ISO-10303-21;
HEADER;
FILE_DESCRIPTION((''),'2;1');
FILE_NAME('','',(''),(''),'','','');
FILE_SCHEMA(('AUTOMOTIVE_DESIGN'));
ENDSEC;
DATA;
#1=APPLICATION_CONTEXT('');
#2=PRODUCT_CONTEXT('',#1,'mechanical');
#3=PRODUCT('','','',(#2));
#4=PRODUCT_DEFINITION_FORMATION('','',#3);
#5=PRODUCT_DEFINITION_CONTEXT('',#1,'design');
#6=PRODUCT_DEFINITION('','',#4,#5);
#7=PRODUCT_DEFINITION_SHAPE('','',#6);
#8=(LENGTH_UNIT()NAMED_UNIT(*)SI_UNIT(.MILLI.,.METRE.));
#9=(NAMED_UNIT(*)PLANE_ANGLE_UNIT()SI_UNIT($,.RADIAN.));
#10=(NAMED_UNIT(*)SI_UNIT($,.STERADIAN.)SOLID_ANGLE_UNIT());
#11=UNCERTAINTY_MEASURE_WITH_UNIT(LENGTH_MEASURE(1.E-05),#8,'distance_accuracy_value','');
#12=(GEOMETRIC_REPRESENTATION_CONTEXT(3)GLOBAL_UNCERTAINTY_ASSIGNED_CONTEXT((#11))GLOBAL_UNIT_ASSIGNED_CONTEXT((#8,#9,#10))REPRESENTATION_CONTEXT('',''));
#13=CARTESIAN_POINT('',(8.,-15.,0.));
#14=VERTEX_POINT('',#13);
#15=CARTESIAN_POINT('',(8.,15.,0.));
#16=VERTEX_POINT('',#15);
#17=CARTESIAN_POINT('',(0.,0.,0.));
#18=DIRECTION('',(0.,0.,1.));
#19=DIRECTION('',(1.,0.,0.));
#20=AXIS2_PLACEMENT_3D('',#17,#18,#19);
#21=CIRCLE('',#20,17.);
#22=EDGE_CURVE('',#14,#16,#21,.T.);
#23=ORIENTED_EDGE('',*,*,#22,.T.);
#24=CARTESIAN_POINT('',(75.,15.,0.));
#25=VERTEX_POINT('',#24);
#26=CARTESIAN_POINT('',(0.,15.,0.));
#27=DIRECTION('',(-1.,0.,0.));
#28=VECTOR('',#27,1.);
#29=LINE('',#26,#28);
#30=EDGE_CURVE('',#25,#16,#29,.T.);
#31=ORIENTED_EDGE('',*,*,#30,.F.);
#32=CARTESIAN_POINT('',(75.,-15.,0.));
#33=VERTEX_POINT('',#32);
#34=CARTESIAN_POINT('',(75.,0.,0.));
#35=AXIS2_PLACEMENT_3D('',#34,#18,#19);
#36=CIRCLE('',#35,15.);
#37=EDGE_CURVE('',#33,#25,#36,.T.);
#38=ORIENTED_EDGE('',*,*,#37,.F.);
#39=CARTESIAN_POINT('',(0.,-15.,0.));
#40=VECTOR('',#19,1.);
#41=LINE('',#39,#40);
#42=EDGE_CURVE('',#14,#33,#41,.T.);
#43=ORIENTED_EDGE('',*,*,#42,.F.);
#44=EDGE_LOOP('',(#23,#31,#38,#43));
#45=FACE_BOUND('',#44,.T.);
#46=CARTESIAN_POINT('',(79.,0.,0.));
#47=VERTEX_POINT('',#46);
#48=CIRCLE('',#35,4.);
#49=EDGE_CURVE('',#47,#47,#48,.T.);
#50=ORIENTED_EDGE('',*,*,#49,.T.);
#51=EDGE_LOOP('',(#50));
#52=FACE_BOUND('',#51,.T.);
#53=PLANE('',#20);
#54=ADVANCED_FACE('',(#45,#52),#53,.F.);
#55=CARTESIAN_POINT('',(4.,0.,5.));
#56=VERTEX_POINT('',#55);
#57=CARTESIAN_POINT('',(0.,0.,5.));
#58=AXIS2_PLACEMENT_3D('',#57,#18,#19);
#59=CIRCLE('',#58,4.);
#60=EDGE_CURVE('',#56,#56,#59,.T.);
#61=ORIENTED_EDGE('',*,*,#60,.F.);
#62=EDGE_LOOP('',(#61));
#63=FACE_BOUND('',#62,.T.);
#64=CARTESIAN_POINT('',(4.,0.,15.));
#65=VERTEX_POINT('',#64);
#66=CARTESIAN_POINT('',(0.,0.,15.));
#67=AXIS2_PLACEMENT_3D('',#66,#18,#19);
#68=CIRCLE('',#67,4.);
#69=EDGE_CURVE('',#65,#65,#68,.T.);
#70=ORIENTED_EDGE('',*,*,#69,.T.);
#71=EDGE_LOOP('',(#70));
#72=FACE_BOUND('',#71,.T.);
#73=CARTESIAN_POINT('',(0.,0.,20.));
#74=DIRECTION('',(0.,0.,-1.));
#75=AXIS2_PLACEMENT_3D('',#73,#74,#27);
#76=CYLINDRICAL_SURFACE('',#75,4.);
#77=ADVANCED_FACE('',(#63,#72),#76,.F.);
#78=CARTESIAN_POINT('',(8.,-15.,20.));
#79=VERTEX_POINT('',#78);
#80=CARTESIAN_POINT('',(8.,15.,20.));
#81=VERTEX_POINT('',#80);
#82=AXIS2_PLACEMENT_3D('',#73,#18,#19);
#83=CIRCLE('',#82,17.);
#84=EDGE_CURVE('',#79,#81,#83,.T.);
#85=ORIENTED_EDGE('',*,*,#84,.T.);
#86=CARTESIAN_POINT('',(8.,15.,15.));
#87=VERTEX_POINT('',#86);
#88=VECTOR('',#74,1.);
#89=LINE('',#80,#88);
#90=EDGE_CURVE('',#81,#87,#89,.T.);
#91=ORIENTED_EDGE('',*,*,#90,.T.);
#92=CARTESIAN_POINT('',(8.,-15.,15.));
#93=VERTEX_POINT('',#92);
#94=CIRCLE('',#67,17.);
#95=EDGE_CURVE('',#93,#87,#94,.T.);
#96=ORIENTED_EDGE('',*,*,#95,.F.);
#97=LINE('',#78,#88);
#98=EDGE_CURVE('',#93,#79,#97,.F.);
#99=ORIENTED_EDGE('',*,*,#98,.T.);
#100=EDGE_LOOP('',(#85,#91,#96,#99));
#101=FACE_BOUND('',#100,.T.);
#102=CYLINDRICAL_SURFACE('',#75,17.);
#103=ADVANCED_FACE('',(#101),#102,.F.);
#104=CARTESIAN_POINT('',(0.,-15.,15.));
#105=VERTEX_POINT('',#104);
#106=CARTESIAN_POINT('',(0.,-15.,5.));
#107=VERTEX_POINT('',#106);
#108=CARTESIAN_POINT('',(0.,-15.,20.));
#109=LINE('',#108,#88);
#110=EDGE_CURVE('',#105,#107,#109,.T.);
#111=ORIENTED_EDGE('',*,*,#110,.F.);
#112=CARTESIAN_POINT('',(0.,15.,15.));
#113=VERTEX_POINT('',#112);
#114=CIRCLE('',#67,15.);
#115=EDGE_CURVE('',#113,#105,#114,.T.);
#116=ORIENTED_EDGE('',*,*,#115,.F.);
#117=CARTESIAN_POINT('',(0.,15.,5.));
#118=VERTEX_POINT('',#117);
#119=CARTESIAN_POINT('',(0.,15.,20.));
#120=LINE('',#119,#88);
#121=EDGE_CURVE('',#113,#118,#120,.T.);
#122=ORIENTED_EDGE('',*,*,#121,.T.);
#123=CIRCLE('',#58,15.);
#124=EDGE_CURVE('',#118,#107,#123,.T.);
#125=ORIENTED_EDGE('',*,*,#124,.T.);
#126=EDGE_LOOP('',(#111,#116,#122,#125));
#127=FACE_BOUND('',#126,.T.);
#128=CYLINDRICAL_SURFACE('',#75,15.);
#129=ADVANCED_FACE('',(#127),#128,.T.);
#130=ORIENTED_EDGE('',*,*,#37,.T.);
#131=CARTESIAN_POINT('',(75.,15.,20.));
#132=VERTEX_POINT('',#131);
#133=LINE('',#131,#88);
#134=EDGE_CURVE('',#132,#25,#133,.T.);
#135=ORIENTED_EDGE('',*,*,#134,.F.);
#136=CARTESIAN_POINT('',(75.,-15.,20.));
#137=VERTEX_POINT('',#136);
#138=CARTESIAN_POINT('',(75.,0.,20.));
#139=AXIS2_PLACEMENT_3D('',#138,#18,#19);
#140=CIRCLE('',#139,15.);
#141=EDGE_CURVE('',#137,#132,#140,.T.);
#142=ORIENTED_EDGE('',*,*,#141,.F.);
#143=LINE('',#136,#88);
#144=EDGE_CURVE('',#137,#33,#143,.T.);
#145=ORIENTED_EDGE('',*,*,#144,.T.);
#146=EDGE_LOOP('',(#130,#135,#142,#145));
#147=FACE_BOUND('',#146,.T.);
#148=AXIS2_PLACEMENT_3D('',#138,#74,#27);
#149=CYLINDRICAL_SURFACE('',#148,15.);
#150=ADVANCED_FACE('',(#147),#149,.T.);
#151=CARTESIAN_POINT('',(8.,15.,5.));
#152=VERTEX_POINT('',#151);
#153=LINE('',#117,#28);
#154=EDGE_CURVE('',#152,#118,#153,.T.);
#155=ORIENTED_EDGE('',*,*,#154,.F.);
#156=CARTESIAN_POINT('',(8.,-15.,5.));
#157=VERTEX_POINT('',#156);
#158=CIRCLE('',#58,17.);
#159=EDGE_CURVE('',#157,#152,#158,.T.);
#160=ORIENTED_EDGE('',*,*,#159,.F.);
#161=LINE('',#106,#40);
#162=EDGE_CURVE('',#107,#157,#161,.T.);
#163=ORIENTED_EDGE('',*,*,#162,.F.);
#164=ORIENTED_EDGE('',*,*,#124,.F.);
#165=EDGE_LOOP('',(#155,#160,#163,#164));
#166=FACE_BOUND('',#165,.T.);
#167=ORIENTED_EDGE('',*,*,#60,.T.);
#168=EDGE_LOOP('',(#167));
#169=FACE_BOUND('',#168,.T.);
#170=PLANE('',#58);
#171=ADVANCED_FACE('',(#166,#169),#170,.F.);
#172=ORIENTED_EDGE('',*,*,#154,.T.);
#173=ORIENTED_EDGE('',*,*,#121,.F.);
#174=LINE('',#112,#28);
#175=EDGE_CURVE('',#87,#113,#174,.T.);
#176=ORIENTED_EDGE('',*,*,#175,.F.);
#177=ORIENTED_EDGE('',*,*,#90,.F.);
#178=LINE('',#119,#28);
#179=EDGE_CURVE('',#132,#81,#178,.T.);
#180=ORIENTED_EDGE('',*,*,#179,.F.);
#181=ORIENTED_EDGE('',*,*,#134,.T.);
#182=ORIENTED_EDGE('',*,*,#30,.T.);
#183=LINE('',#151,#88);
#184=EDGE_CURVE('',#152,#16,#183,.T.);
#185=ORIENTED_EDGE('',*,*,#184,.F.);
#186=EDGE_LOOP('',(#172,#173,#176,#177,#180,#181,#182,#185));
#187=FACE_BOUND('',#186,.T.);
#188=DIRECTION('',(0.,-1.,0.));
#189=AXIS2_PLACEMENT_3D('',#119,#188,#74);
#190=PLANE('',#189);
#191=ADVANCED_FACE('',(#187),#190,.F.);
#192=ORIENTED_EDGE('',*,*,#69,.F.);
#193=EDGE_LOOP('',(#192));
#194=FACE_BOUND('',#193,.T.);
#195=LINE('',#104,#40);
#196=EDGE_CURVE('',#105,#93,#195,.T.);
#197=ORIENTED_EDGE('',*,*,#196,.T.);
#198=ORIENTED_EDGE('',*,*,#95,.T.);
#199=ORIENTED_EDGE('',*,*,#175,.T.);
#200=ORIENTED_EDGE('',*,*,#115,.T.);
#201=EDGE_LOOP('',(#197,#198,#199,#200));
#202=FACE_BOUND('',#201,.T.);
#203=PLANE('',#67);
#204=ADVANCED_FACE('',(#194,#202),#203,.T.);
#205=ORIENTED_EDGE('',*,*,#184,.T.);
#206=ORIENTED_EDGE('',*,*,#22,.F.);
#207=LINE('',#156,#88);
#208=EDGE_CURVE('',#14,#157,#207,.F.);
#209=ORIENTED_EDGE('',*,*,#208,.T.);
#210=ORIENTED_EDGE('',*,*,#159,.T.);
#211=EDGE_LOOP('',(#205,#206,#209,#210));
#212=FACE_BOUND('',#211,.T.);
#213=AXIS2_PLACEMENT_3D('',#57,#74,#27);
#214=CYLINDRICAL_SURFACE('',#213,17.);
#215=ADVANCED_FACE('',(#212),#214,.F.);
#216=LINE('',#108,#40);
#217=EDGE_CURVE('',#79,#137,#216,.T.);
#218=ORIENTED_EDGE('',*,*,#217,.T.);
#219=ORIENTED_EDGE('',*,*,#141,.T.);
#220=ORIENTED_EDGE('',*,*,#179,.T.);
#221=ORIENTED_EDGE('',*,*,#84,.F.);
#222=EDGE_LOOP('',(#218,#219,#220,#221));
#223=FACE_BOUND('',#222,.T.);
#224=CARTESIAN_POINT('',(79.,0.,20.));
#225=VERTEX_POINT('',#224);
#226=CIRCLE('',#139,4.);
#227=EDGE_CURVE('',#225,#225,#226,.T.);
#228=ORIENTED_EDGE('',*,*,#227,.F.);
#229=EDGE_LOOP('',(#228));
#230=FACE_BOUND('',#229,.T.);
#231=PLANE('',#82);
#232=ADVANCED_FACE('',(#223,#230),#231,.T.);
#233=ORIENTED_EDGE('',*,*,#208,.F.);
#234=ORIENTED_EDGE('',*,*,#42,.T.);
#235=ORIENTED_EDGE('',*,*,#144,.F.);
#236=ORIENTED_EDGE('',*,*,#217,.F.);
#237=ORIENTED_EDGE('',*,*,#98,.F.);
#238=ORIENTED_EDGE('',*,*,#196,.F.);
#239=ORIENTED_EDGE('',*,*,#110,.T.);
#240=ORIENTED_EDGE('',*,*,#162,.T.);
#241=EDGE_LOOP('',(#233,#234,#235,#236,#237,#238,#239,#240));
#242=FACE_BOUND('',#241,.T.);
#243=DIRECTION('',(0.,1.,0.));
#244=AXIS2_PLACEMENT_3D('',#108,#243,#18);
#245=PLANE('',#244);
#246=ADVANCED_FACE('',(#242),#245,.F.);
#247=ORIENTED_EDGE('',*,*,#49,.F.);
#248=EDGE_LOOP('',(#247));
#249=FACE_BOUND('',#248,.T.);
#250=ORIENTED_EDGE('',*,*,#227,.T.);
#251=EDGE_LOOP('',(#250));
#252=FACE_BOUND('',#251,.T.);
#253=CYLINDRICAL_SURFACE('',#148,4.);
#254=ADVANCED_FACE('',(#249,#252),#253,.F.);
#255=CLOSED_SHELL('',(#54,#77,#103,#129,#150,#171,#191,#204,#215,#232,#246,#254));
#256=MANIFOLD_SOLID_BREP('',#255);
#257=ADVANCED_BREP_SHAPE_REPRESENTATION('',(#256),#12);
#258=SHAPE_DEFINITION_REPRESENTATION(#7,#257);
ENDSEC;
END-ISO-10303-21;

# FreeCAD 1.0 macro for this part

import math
import FreeCAD as App
import Part
import Sketcher

doc = App.newDocument("Part")
body = doc.addObject("PartDesign::Body", "Body")

# Sketch on XY plane
sketch1 = body.newObject("Sketcher::SketchObject", "Sketch")
sketch1.AttachmentSupport = (doc.getObject("XY_Plane"), [""])
sketch1.MapMode = "FlatFace"
sketch1.addGeometry(Part.LineSegment(App.Vector(75, 15, 0), App.Vector(0, 15, 0)), False)
sketch1.addGeometry(Part.ArcOfCircle(Part.Circle(App.Vector(0, 0, 0), App.Vector(0, 0, 1), 15), math.radians(90), math.radians(270)), False)
sketch1.addGeometry(Part.LineSegment(App.Vector(0, -15, 0), App.Vector(75, -15, 0)), False)
sketch1.addGeometry(Part.ArcOfCircle(Part.Circle(App.Vector(75, 0, 0), App.Vector(0, 0, 1), 15), math.radians(-90), math.radians(90)), False)
sketch1.addGeometry(Part.Circle(App.Vector(75, 0, 0), App.Vector(0, 0, 1), 4), False)
sketch1.addGeometry(Part.Circle(App.Vector(0, 0, 0), App.Vector(0, 0, 1), 4), False)
sketch1.addConstraint(Sketcher.Constraint("Tangent", 0, 2, 1, 1))
sketch1.addConstraint(Sketcher.Constraint("Tangent", 1, 2, 2, 1))
sketch1.addConstraint(Sketcher.Constraint("Tangent", 2, 2, 3, 1))
sketch1.addConstraint(Sketcher.Constraint("Tangent", 3, 2, 0, 1))
sketch1.addConstraint(Sketcher.Constraint("Horizontal", 0))
sketch1.addConstraint(Sketcher.Constraint("Horizontal", 2))
sketch1.addConstraint(Sketcher.Constraint("Coincident", 1, 3, -1, 1))
sketch1.addConstraint(Sketcher.Constraint("Coincident", 5, 3, -1, 1))
sketch1.addConstraint(Sketcher.Constraint("Coincident", 4, 3, 3, 3))
sketch1.addConstraint(Sketcher.Constraint("Equal", 4, 5))
sketch1.addConstraint(Sketcher.Constraint("Diameter", 4, 8.0))
sketch1.addConstraint(Sketcher.Constraint("Radius", 1, 15.0))
sketch1.addConstraint(Sketcher.Constraint("DistanceX", 0, 2, 0, 1, 75.0))
pad1 = body.newObject("PartDesign::Pad", "Pad")
pad1.Profile = sketch1
pad1.Length = 20

# Sketch on XY plane
sketch2 = body.newObject("Sketcher::SketchObject", "Sketch001")
sketch2.AttachmentSupport = (doc.getObject("XY_Plane"), [""])
sketch2.MapMode = "FlatFace"
sketch2.addGeometry(Part.Circle(App.Vector(0, 0, 0), App.Vector(0, 0, 1), 17), False)
sketch2.addConstraint(Sketcher.Constraint("Coincident", 0, 3, -1, 1))
sketch2.addConstraint(Sketcher.Constraint("Diameter", 0, 34.0))
pocket1 = body.newObject("PartDesign::Pocket", "Pocket")
pocket1.Profile = sketch2
pocket1.Length = 5
pocket1.Reversed = True

# Sketch on XY plane
sketch3 = body.newObject("Sketcher::SketchObject", "Sketch002")
sketch3.AttachmentSupport = (doc.getObject("XY_Plane"), [""])
sketch3.MapMode = "FlatFace"
sketch3.AttachmentOffset = App.Placement(App.Vector(0, 0, 15), App.Rotation())
sketch3.addGeometry(Part.Circle(App.Vector(0, 0, 0), App.Vector(0, 0, 1), 17), False)
sketch3.addConstraint(Sketcher.Constraint("Coincident", 0, 3, -1, 1))
sketch3.addConstraint(Sketcher.Constraint("Diameter", 0, 34.0))
pocket2 = body.newObject("PartDesign::Pocket", "Pocket001")
pocket2.Profile = sketch3
pocket2.Length = 5
pocket2.Reversed = True

doc.recompute()
